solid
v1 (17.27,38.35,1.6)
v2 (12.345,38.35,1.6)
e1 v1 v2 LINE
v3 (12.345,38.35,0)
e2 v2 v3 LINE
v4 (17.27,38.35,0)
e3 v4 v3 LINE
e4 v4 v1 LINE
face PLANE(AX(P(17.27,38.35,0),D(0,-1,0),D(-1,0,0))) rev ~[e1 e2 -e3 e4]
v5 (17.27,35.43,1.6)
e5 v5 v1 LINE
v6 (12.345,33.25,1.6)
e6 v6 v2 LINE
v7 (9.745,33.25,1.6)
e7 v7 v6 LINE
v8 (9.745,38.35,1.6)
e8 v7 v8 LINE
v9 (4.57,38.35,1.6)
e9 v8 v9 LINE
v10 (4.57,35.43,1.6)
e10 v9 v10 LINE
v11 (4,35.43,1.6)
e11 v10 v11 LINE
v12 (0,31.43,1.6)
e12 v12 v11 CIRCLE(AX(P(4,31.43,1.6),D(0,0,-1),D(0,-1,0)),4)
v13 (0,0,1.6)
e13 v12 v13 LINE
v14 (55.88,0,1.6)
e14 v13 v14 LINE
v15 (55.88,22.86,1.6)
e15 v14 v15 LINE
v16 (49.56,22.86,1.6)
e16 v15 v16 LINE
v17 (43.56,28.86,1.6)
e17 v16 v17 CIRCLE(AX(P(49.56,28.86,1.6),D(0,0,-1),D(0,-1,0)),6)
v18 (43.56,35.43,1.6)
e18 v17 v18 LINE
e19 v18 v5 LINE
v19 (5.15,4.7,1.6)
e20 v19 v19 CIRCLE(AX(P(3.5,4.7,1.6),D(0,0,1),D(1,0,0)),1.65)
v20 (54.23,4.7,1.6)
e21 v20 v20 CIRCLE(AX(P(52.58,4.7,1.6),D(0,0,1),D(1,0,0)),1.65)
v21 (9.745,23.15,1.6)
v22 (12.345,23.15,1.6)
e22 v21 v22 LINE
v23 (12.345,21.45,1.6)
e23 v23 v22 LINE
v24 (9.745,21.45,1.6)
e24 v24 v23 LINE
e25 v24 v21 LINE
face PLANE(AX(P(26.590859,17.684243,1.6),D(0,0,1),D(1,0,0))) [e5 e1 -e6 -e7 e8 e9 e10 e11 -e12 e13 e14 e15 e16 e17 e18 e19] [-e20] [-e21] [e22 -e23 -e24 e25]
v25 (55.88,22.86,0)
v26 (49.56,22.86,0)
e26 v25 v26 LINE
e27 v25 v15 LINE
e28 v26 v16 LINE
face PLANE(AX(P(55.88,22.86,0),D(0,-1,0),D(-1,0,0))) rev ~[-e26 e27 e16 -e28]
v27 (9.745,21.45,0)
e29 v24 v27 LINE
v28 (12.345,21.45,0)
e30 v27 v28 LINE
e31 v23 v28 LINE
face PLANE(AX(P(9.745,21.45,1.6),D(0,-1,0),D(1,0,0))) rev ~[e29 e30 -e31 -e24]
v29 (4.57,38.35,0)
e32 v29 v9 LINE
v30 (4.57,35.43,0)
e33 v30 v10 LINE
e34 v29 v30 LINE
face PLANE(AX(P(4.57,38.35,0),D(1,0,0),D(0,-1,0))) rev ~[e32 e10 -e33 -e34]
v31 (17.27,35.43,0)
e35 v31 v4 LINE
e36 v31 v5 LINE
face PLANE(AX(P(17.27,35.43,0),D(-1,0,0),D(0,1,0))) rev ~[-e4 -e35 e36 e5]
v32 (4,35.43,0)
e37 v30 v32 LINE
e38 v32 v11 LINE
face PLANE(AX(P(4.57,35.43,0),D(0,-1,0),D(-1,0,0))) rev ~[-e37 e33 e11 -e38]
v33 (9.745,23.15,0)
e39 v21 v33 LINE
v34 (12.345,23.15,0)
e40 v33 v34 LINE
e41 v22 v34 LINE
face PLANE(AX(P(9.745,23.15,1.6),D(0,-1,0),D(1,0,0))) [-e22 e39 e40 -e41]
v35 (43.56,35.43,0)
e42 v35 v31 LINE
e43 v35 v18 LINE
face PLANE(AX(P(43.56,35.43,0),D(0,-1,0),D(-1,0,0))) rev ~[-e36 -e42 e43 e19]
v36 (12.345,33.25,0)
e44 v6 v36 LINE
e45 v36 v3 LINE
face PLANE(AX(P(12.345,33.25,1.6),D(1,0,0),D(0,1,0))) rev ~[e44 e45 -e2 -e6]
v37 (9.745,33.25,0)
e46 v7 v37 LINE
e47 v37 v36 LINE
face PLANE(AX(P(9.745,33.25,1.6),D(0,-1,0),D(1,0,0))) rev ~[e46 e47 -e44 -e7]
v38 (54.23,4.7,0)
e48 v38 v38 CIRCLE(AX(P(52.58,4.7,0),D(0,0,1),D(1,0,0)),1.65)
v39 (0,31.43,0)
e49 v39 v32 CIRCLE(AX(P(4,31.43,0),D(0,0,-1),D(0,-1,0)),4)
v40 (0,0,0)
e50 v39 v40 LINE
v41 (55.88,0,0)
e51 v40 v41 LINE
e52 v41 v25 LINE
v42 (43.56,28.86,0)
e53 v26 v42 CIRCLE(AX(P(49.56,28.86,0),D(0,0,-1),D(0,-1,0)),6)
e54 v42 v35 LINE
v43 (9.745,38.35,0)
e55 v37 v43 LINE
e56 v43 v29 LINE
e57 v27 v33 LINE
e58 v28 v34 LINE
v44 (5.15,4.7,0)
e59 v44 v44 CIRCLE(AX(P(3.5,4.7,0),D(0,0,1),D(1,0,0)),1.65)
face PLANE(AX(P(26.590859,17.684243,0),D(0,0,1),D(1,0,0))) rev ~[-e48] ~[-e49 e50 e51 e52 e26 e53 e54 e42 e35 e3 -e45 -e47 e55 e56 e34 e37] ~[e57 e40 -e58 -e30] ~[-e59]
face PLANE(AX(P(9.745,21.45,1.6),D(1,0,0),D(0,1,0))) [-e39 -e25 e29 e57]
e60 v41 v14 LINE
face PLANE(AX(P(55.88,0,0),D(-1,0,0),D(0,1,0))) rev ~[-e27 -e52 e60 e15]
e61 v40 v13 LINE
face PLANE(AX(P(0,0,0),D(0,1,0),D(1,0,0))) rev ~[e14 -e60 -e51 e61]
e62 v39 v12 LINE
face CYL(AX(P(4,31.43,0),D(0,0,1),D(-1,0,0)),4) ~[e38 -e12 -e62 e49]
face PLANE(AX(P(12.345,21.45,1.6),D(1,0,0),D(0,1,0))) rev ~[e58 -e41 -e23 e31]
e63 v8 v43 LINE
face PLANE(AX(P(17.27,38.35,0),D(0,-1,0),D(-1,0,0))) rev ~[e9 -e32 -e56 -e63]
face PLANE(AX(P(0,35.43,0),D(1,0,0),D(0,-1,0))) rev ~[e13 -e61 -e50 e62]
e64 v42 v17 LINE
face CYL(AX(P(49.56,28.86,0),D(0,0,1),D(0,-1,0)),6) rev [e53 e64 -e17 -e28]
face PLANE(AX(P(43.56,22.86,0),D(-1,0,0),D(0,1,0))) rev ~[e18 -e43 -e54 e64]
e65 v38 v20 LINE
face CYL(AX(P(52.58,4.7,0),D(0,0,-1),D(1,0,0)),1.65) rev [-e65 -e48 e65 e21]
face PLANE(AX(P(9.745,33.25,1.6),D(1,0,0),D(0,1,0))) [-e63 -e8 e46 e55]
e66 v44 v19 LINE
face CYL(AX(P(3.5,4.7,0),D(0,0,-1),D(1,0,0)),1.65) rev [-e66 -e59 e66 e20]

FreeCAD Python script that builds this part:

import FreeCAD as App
import Part
import Sketcher
Q = App.Units.Quantity


def edges_at(feature, points):
    """Names of the edges that pass closest to the given points."""
    edges = feature.Shape.Edges
    near = lambda p: min(range(len(edges)), key=lambda i: edges[i].distToShape(Part.Vertex(*p))[0])
    return sorted({f"Edge{near(p) + 1}" for p in points})

doc = App.newDocument("Part")
params = doc.addObject("Spreadsheet::Sheet", "Params")
for row, (alias, value) in enumerate([
    ("sketch1_diameter", "3.3 mm"),
    ("sketch1_width", "12.7 mm"),
    ("sketch1_width2", "55.88 mm"),
    ("sketch1_width3", "12.32 mm"),
    ("sketch1_width4", "26.29 mm"),
    ("pad1_length", "1.6 mm"),
    ("fillet_radius", "4 mm"),
    ("fillet2_radius", "6 mm"),
    ("sketch2_width", "2.6 mm"),
    ("sketch2_height", "5.1 mm"),
    ("sketch2_height2", "1.7 mm"),
], start=1):
    params.set(f"A{row}", alias)
    params.set(f"B{row}", "=" + value)
    params.setAlias(f"B{row}", alias)

body = doc.addObject("PartDesign::Body", "Body")

# Sketch on XY plane
sketch1 = body.newObject("Sketcher::SketchObject", "Sketch")
sketch1.AttachmentSupport = (doc.getObject("XY_Plane"), [""])
sketch1.MapMode = "FlatFace"
sketch1.addGeometry([
    Part.LineSegment(App.Vector(0, 35.4, 0), App.Vector(0, 0, 0)),  # 0
    Part.LineSegment(App.Vector(0, 0, 0), App.Vector(55.9, 0, 0)),  # 1
    Part.LineSegment(App.Vector(55.9, 0, 0), App.Vector(55.9, 22.9, 0)),  # 2
    Part.LineSegment(App.Vector(55.9, 22.9, 0), App.Vector(43.6, 22.9, 0)),  # 3
    Part.LineSegment(App.Vector(43.6, 22.9, 0), App.Vector(43.6, 35.4, 0)),  # 4
    Part.LineSegment(App.Vector(43.6, 35.4, 0), App.Vector(17.3, 35.4, 0)),  # 5
    Part.LineSegment(App.Vector(17.3, 35.4, 0), App.Vector(17.3, 38.4, 0)),  # 6
    Part.LineSegment(App.Vector(17.3, 38.4, 0), App.Vector(4.6, 38.4, 0)),  # 7
    Part.LineSegment(App.Vector(4.6, 38.4, 0), App.Vector(4.6, 35.4, 0)),  # 8
    Part.LineSegment(App.Vector(4.6, 35.4, 0), App.Vector(0, 35.4, 0)),  # 9
    Part.Circle(App.Vector(3.5, 4.7, 0), App.Vector(0, 0, 1), 1.6),  # 10
    Part.Circle(App.Vector(52.6, 4.7, 0), App.Vector(0, 0, 1), 1.6),  # 11
], False)
sketch1.addConstraint([
    Sketcher.Constraint("Coincident", 0, 2, 1, 1),
    Sketcher.Constraint("Coincident", 1, 2, 2, 1),
    Sketcher.Constraint("Coincident", 2, 2, 3, 1),
    Sketcher.Constraint("Coincident", 3, 2, 4, 1),
    Sketcher.Constraint("Coincident", 4, 2, 5, 1),
    Sketcher.Constraint("Coincident", 5, 2, 6, 1),
    Sketcher.Constraint("Coincident", 6, 2, 7, 1),
    Sketcher.Constraint("Coincident", 7, 2, 8, 1),
    Sketcher.Constraint("Coincident", 8, 2, 9, 1),
    Sketcher.Constraint("Coincident", 9, 2, 0, 1),
    Sketcher.Constraint("Vertical", 0),
    Sketcher.Constraint("Horizontal", 1),
    Sketcher.Constraint("Vertical", 2),
    Sketcher.Constraint("Horizontal", 3),
    Sketcher.Constraint("Vertical", 4),
    Sketcher.Constraint("Horizontal", 5),
    Sketcher.Constraint("Vertical", 6),
    Sketcher.Constraint("Horizontal", 7),
    Sketcher.Constraint("Vertical", 8),
    Sketcher.Constraint("Horizontal", 9),
    Sketcher.Constraint("Coincident", 0, 2, -1, 1),
    Sketcher.Constraint("Equal", 10, 11),
    Sketcher.Constraint("Horizontal", 10, 3, 11, 3),
    Sketcher.Constraint("Horizontal", 5, 2, 8, 2),
    Sketcher.Constraint("Diameter", 10, Q("3.3 mm")),
    Sketcher.Constraint("DistanceX", 7, 2, 7, 1, Q("12.7 mm")),
    Sketcher.Constraint("DistanceX", 1, 1, 1, 2, Q("55.88 mm")),
    Sketcher.Constraint("DistanceX", 3, 2, 3, 1, Q("12.32 mm")),
    Sketcher.Constraint("DistanceX", 5, 2, 5, 1, Q("26.29 mm")),
    Sketcher.Constraint("DistanceY", 0, 2, 0, 1, Q("35.43 mm")),
    Sketcher.Constraint("DistanceY", 2, 1, 2, 2, Q("22.86 mm")),
    Sketcher.Constraint("DistanceY", 6, 1, 6, 2, Q("2.92 mm")),
    Sketcher.Constraint("DistanceX", -1, 1, 10, 3, Q("3.5 mm")),
    Sketcher.Constraint("DistanceY", -1, 1, 10, 3, Q("4.7 mm")),
    Sketcher.Constraint("DistanceX", 11, 3, 1, 2, Q("3.3 mm")),
])
sketch1.setExpression("Constraints[24]", "Params.sketch1_diameter")
sketch1.setExpression("Constraints[25]", "Params.sketch1_width")
sketch1.setExpression("Constraints[26]", "Params.sketch1_width2")
sketch1.setExpression("Constraints[27]", "Params.sketch1_width3")
sketch1.setExpression("Constraints[28]", "Params.sketch1_width4")
pad1 = body.newObject("PartDesign::Pad", "Pad")
pad1.Profile = sketch1
pad1.setExpression("Length", "Params.pad1_length")
doc.recompute()

fillet = body.newObject("PartDesign::Fillet", "Fillet")
fillet.Base = (pad1, edges_at(pad1, [(0, 35.43, 0.8)]))
fillet.setExpression("Radius", "Params.fillet_radius")
doc.recompute()

fillet2 = body.newObject("PartDesign::Fillet", "Fillet001")
fillet2.Base = (fillet, edges_at(fillet, [(43.56, 22.86, 0.8)]))
fillet2.setExpression("Radius", "Params.fillet2_radius")

# Sketch on XY plane
sketch2 = body.newObject("Sketcher::SketchObject", "Sketch001")
sketch2.AttachmentSupport = (doc.getObject("XY_Plane"), [""])
sketch2.MapMode = "FlatFace"
sketch2.AttachmentOffset = App.Placement(App.Vector(0, 0, 1.6), App.Rotation())
sketch2.addGeometry([
    Part.LineSegment(App.Vector(9.7, 38.4, 0), App.Vector(9.7, 33.2, 0)),  # 0
    Part.LineSegment(App.Vector(9.7, 33.2, 0), App.Vector(12.3, 33.2, 0)),  # 1
    Part.LineSegment(App.Vector(12.3, 33.2, 0), App.Vector(12.3, 38.4, 0)),  # 2
    Part.LineSegment(App.Vector(12.3, 38.4, 0), App.Vector(9.7, 38.4, 0)),  # 3
    Part.LineSegment(App.Vector(9.7, 23.1, 0), App.Vector(9.7, 21.4, 0)),  # 4
    Part.LineSegment(App.Vector(9.7, 21.4, 0), App.Vector(12.3, 21.4, 0)),  # 5
    Part.LineSegment(App.Vector(12.3, 21.4, 0), App.Vector(12.3, 23.1, 0)),  # 6
    Part.LineSegment(App.Vector(12.3, 23.1, 0), App.Vector(9.7, 23.1, 0)),  # 7
], False)
sketch2.addConstraint([
    Sketcher.Constraint("Coincident", 0, 2, 1, 1),
    Sketcher.Constraint("Coincident", 1, 2, 2, 1),
    Sketcher.Constraint("Coincident", 2, 2, 3, 1),
    Sketcher.Constraint("Coincident", 3, 2, 0, 1),
    Sketcher.Constraint("Coincident", 4, 2, 5, 1),
    Sketcher.Constraint("Coincident", 5, 2, 6, 1),
    Sketcher.Constraint("Coincident", 6, 2, 7, 1),
    Sketcher.Constraint("Coincident", 7, 2, 4, 1),
    Sketcher.Constraint("Vertical", 0),
    Sketcher.Constraint("Horizontal", 1),
    Sketcher.Constraint("Vertical", 2),
    Sketcher.Constraint("Horizontal", 3),
    Sketcher.Constraint("Vertical", 4),
    Sketcher.Constraint("Horizontal", 5),
    Sketcher.Constraint("Vertical", 6),
    Sketcher.Constraint("Horizontal", 7),
    Sketcher.Constraint("Vertical", 3, 2, 4, 2),
    Sketcher.Constraint("Vertical", 2, 2, 5, 2),
    Sketcher.Constraint("DistanceX", 1, 1, 1, 2, Q("2.6 mm")),
    Sketcher.Constraint("DistanceY", 0, 2, 0, 1, Q("5.1 mm")),
    Sketcher.Constraint("DistanceY", 4, 2, 4, 1, Q("1.7 mm")),
    Sketcher.Constraint("DistanceY", 4, 2, 0, 2, Q("11.8 mm")),
    Sketcher.Constraint("DistanceY", -1, 1, 0, 2, Q("33.25 mm")),
    Sketcher.Constraint("DistanceX", -1, 1, 0, 2, Q("9.745 mm")),
])
sketch2.setExpression("Constraints[18]", "Params.sketch2_width")
sketch2.setExpression("Constraints[19]", "Params.sketch2_height")
sketch2.setExpression("Constraints[20]", "Params.sketch2_height2")
pocket1 = body.newObject("PartDesign::Pocket", "Pocket")
pocket1.Profile = sketch2
pocket1.Type = "ThroughAll"

doc.recompute()
